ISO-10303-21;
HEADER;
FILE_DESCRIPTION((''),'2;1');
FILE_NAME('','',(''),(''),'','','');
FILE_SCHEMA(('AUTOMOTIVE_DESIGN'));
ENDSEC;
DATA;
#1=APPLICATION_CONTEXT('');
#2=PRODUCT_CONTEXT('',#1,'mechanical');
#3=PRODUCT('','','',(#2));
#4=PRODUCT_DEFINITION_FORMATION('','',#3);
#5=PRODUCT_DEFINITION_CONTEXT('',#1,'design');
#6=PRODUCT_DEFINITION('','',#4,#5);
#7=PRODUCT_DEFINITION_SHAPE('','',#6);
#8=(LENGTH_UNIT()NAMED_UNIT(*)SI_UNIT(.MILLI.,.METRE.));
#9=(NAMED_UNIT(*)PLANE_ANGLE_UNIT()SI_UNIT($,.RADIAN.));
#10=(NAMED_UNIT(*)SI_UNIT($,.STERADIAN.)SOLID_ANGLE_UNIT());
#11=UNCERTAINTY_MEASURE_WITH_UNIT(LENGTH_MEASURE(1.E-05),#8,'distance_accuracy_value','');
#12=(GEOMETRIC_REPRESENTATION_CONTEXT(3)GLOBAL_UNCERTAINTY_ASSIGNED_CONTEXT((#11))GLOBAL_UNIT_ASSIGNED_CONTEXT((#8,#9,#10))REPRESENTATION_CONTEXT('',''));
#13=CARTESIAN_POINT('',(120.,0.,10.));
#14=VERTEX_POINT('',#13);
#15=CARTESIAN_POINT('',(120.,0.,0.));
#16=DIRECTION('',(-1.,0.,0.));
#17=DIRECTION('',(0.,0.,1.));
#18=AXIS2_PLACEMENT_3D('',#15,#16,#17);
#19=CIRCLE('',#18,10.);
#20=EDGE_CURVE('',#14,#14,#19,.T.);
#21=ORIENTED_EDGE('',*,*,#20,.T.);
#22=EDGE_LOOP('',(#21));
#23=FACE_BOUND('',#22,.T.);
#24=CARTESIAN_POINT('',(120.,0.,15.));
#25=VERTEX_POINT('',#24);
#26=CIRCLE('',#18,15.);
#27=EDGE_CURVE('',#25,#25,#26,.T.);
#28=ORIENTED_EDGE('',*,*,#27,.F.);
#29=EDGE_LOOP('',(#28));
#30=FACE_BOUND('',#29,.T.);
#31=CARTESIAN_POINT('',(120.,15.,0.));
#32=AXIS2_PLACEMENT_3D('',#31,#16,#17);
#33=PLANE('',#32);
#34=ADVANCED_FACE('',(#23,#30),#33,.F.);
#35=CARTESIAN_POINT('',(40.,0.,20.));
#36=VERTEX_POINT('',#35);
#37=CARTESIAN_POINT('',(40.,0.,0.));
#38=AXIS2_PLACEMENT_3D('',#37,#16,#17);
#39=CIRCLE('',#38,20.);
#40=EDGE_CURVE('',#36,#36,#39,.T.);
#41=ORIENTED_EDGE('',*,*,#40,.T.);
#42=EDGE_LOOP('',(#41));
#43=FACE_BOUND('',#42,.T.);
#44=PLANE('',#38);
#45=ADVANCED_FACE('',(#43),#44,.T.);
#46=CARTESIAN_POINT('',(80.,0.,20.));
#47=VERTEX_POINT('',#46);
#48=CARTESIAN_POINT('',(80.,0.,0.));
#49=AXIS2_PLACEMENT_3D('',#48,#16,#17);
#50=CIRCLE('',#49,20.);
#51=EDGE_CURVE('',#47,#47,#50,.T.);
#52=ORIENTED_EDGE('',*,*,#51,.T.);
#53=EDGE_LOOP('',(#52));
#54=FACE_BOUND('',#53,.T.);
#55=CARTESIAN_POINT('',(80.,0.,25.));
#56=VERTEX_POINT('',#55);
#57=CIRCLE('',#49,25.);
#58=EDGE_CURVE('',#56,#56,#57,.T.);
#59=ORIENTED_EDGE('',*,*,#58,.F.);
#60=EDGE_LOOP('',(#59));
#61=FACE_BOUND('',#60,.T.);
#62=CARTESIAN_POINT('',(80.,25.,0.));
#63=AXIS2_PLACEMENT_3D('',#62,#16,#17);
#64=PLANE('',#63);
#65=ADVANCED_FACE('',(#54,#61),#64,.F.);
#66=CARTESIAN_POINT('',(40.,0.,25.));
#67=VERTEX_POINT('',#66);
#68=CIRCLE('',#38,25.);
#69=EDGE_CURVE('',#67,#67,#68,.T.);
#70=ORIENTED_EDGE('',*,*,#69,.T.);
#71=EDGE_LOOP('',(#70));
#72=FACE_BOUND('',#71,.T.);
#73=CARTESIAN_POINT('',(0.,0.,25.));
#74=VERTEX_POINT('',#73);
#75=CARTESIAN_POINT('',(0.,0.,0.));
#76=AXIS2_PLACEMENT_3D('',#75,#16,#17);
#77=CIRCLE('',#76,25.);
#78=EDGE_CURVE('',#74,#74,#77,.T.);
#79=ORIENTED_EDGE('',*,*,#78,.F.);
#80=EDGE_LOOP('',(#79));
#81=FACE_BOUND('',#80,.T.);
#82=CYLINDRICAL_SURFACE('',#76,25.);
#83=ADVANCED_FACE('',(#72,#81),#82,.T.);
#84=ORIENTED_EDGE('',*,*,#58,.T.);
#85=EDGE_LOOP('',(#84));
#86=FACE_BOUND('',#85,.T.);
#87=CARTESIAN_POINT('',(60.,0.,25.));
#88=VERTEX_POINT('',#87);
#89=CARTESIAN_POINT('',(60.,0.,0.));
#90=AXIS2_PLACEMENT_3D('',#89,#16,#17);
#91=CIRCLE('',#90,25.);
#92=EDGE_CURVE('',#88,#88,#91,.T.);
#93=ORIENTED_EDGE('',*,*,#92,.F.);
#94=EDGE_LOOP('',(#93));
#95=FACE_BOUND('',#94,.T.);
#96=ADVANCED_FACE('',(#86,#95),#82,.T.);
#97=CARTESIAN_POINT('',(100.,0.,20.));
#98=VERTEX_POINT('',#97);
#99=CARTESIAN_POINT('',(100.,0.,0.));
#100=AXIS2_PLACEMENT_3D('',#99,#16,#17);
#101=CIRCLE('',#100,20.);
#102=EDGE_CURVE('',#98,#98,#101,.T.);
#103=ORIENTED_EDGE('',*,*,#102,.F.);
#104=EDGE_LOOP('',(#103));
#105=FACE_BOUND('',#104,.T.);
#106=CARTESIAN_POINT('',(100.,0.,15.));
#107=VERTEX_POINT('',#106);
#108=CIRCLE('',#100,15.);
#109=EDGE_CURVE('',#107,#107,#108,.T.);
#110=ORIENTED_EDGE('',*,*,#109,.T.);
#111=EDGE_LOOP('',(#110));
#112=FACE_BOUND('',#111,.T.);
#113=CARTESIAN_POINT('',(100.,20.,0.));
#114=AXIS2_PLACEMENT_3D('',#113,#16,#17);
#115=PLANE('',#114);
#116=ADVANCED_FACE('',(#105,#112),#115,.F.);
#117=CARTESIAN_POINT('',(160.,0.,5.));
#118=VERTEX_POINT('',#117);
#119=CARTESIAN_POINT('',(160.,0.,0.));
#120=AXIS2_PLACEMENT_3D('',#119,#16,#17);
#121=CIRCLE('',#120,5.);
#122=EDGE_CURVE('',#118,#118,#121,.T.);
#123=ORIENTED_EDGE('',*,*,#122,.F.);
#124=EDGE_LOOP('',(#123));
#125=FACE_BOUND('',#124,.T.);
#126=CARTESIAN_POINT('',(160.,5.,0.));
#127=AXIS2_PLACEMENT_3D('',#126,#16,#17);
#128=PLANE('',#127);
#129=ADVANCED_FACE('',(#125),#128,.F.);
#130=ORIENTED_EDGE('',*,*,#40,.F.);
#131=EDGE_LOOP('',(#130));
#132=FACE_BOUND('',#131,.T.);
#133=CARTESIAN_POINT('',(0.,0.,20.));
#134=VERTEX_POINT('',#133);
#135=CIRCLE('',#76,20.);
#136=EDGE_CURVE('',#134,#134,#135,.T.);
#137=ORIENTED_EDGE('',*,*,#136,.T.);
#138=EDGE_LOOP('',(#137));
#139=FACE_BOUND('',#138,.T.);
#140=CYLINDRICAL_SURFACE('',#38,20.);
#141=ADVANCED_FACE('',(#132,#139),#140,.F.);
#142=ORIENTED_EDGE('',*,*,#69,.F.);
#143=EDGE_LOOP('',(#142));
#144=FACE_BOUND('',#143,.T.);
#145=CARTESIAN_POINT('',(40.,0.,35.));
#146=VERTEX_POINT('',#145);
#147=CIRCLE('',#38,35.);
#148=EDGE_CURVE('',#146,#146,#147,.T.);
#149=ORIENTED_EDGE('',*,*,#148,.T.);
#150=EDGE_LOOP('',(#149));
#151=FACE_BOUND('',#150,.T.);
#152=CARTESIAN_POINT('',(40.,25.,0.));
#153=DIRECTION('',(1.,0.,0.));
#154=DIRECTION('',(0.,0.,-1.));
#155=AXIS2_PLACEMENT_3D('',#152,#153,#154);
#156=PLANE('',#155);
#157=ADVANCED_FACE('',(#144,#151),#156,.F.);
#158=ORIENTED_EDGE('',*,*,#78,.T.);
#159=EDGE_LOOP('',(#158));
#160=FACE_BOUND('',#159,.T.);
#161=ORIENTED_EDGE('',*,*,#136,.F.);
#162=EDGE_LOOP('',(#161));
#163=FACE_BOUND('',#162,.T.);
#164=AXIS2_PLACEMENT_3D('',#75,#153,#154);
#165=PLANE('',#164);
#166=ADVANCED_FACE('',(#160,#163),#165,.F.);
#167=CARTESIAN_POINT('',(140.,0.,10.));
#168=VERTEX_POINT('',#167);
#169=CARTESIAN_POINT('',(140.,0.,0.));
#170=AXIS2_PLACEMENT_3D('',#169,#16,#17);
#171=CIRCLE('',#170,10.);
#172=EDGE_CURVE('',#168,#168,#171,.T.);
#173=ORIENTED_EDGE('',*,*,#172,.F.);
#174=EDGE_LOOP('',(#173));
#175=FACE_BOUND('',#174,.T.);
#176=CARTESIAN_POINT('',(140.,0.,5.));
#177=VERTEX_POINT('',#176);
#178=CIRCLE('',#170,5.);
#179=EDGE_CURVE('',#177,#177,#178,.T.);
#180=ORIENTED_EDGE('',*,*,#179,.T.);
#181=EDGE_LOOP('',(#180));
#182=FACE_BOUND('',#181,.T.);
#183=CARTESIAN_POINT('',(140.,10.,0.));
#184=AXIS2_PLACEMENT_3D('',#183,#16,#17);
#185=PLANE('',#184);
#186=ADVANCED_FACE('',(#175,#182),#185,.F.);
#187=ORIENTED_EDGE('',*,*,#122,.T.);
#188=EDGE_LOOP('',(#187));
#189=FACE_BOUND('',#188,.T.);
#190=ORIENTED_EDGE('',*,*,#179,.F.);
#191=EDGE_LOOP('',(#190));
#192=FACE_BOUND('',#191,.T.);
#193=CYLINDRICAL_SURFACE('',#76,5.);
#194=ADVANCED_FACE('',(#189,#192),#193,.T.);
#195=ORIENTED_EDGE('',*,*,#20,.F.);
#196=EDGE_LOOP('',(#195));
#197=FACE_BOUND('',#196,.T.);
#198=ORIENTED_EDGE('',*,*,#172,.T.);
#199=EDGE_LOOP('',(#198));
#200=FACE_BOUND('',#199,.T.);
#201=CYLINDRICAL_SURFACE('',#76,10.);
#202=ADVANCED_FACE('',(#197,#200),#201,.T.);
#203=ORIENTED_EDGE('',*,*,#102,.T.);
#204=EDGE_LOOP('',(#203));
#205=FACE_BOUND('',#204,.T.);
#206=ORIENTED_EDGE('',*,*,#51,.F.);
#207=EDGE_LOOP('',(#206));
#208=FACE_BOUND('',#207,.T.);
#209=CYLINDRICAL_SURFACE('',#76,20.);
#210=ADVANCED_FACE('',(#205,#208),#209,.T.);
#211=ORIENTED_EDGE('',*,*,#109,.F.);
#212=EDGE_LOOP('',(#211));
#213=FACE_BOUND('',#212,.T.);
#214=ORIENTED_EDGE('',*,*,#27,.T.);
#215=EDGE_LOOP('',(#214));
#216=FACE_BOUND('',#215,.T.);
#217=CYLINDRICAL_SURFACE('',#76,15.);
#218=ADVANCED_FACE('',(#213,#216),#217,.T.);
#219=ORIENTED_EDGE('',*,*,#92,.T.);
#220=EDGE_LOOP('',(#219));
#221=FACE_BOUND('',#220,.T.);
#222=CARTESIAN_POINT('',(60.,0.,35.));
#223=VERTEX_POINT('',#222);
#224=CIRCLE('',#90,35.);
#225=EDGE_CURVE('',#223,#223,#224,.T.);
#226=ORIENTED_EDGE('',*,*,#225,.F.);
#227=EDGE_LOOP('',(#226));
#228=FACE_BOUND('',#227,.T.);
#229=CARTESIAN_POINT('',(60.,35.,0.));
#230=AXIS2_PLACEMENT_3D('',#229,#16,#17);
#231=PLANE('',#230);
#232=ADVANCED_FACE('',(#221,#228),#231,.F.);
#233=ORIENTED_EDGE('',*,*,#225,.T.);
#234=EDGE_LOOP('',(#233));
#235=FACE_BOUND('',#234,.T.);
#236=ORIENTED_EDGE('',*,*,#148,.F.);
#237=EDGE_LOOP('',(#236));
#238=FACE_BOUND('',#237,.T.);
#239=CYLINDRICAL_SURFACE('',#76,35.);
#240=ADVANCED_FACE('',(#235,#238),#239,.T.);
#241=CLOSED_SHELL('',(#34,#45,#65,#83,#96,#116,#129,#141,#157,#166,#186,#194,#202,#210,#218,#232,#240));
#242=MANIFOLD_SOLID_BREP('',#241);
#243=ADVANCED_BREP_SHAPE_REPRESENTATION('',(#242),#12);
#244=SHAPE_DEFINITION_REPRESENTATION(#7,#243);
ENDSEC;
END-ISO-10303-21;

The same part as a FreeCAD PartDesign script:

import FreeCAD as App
import Part
import Sketcher
from FreeCAD import Vector


def add_polygon(sketch, points):
    """Adds a closed chain of lines whose ends are joined by coincident constraints."""
    first, n = sketch.GeometryCount, len(points)
    for a, b in zip(points, points[1:] + points[:1]):
        sketch.addGeometry(Part.LineSegment(App.Vector(*a, 0), App.Vector(*b, 0)), False)
    for i in range(n):
        sketch.addConstraint(Sketcher.Constraint("Coincident", first + i, 2, first + (i + 1) % n, 1))

doc = App.newDocument("Part")
params = doc.addObject("Spreadsheet::Sheet", "Params")
for row, (alias, value) in enumerate([
    ("sketch1_width", "160 mm"),
    ("sketch1_width2", "20 mm"),
    ("sketch1_height", "25 mm"),
    ("sketch1_height2", "10 mm"),
    ("revolution_angle", "360 deg"),
    ("sketch2_diameter", "40 mm"),
    ("pocket1_length", "40 mm"),
], start=1):
    params.set(f"A{row}", alias)
    params.set(f"B{row}", "=" + value)
    params.setAlias(f"B{row}", alias)

body = doc.addObject("PartDesign::Body", "Body")

# Sketch on XY plane
sketch1 = body.newObject("Sketcher::SketchObject", "Sketch")
sketch1.AttachmentSupport = (doc.getObject("XY_Plane"), [""])
sketch1.MapMode = "FlatFace"
add_polygon(sketch1, [(0, 25), (0, 0), (160, 0), (160, 5), (140, 5), (140, 10), (120, 10), (120, 15), (100, 15), (100, 20), (80, 20), (80, 25), (60, 25), (60, 35), (40, 35), (40, 25)])  # lines 0-15
sketch1.addConstraint([
    Sketcher.Constraint("Vertical", 0),
    Sketcher.Constraint("Horizontal", 1),
    Sketcher.Constraint("Vertical", 2),
    Sketcher.Constraint("Horizontal", 3),
    Sketcher.Constraint("Vertical", 4),
    Sketcher.Constraint("Horizontal", 5),
    Sketcher.Constraint("Vertical", 6),
    Sketcher.Constraint("Horizontal", 7),
    Sketcher.Constraint("Vertical", 8),
    Sketcher.Constraint("Horizontal", 9),
    Sketcher.Constraint("Vertical", 10),
    Sketcher.Constraint("Horizontal", 11),
    Sketcher.Constraint("Vertical", 12),
    Sketcher.Constraint("Horizontal", 13),
    Sketcher.Constraint("Vertical", 14),
    Sketcher.Constraint("Horizontal", 15),
    Sketcher.Constraint("Coincident", 0, 2, -1, 1),
    Sketcher.Constraint("Horizontal", 11, 2, 14, 2),
    Sketcher.Constraint("Equal", 3, 5),
    Sketcher.Constraint("Equal", 5, 7),
    Sketcher.Constraint("Equal", 7, 9),
    Sketcher.Constraint("Equal", 9, 11),
    Sketcher.Constraint("Equal", 11, 13),
    Sketcher.Constraint("Equal", 2, 4),
    Sketcher.Constraint("Equal", 4, 6),
    Sketcher.Constraint("Equal", 6, 8),
    Sketcher.Constraint("Equal", 8, 10),
    Sketcher.Constraint("DistanceX", 1, 1, 1, 2, 160.0),
    Sketcher.Constraint("DistanceX", 3, 2, 3, 1, 20.0),
    Sketcher.Constraint("DistanceY", 0, 2, 0, 1, 25.0),
    Sketcher.Constraint("DistanceY", 12, 1, 12, 2, 10.0),
])
sketch1.setExpression("Constraints[43]", "Params.sketch1_width")
sketch1.setExpression("Constraints[44]", "Params.sketch1_width2")
sketch1.setExpression("Constraints[45]", "Params.sketch1_height")
sketch1.setExpression("Constraints[46]", "Params.sketch1_height2")
revolution = body.newObject("PartDesign::Revolution", "Revolution")
revolution.Profile = sketch1
revolution.ReferenceAxis = (sketch1, ["H_Axis"])
revolution.setExpression("Angle", "Params.revolution_angle")

# Sketch on YZ plane
sketch2 = body.newObject("Sketcher::SketchObject", "Sketch001")
sketch2.AttachmentSupport = (doc.getObject("YZ_Plane"), [""])
sketch2.MapMode = "FlatFace"
sketch2.addGeometry(Part.Circle(Vector(0, 0, 0), Vector(0, 0, 1), 20), False)
sketch2.addConstraint([
    Sketcher.Constraint("Coincident", 0, 3, -1, 1),
    Sketcher.Constraint("Diameter", 0, 40.0),
])
sketch2.setExpression("Constraints[1]", "Params.sketch2_diameter")
pocket1 = body.newObject("PartDesign::Pocket", "Pocket")
pocket1.Profile = sketch2
pocket1.setExpression("Length", "Params.pocket1_length")
pocket1.Reversed = True

doc.recompute()
